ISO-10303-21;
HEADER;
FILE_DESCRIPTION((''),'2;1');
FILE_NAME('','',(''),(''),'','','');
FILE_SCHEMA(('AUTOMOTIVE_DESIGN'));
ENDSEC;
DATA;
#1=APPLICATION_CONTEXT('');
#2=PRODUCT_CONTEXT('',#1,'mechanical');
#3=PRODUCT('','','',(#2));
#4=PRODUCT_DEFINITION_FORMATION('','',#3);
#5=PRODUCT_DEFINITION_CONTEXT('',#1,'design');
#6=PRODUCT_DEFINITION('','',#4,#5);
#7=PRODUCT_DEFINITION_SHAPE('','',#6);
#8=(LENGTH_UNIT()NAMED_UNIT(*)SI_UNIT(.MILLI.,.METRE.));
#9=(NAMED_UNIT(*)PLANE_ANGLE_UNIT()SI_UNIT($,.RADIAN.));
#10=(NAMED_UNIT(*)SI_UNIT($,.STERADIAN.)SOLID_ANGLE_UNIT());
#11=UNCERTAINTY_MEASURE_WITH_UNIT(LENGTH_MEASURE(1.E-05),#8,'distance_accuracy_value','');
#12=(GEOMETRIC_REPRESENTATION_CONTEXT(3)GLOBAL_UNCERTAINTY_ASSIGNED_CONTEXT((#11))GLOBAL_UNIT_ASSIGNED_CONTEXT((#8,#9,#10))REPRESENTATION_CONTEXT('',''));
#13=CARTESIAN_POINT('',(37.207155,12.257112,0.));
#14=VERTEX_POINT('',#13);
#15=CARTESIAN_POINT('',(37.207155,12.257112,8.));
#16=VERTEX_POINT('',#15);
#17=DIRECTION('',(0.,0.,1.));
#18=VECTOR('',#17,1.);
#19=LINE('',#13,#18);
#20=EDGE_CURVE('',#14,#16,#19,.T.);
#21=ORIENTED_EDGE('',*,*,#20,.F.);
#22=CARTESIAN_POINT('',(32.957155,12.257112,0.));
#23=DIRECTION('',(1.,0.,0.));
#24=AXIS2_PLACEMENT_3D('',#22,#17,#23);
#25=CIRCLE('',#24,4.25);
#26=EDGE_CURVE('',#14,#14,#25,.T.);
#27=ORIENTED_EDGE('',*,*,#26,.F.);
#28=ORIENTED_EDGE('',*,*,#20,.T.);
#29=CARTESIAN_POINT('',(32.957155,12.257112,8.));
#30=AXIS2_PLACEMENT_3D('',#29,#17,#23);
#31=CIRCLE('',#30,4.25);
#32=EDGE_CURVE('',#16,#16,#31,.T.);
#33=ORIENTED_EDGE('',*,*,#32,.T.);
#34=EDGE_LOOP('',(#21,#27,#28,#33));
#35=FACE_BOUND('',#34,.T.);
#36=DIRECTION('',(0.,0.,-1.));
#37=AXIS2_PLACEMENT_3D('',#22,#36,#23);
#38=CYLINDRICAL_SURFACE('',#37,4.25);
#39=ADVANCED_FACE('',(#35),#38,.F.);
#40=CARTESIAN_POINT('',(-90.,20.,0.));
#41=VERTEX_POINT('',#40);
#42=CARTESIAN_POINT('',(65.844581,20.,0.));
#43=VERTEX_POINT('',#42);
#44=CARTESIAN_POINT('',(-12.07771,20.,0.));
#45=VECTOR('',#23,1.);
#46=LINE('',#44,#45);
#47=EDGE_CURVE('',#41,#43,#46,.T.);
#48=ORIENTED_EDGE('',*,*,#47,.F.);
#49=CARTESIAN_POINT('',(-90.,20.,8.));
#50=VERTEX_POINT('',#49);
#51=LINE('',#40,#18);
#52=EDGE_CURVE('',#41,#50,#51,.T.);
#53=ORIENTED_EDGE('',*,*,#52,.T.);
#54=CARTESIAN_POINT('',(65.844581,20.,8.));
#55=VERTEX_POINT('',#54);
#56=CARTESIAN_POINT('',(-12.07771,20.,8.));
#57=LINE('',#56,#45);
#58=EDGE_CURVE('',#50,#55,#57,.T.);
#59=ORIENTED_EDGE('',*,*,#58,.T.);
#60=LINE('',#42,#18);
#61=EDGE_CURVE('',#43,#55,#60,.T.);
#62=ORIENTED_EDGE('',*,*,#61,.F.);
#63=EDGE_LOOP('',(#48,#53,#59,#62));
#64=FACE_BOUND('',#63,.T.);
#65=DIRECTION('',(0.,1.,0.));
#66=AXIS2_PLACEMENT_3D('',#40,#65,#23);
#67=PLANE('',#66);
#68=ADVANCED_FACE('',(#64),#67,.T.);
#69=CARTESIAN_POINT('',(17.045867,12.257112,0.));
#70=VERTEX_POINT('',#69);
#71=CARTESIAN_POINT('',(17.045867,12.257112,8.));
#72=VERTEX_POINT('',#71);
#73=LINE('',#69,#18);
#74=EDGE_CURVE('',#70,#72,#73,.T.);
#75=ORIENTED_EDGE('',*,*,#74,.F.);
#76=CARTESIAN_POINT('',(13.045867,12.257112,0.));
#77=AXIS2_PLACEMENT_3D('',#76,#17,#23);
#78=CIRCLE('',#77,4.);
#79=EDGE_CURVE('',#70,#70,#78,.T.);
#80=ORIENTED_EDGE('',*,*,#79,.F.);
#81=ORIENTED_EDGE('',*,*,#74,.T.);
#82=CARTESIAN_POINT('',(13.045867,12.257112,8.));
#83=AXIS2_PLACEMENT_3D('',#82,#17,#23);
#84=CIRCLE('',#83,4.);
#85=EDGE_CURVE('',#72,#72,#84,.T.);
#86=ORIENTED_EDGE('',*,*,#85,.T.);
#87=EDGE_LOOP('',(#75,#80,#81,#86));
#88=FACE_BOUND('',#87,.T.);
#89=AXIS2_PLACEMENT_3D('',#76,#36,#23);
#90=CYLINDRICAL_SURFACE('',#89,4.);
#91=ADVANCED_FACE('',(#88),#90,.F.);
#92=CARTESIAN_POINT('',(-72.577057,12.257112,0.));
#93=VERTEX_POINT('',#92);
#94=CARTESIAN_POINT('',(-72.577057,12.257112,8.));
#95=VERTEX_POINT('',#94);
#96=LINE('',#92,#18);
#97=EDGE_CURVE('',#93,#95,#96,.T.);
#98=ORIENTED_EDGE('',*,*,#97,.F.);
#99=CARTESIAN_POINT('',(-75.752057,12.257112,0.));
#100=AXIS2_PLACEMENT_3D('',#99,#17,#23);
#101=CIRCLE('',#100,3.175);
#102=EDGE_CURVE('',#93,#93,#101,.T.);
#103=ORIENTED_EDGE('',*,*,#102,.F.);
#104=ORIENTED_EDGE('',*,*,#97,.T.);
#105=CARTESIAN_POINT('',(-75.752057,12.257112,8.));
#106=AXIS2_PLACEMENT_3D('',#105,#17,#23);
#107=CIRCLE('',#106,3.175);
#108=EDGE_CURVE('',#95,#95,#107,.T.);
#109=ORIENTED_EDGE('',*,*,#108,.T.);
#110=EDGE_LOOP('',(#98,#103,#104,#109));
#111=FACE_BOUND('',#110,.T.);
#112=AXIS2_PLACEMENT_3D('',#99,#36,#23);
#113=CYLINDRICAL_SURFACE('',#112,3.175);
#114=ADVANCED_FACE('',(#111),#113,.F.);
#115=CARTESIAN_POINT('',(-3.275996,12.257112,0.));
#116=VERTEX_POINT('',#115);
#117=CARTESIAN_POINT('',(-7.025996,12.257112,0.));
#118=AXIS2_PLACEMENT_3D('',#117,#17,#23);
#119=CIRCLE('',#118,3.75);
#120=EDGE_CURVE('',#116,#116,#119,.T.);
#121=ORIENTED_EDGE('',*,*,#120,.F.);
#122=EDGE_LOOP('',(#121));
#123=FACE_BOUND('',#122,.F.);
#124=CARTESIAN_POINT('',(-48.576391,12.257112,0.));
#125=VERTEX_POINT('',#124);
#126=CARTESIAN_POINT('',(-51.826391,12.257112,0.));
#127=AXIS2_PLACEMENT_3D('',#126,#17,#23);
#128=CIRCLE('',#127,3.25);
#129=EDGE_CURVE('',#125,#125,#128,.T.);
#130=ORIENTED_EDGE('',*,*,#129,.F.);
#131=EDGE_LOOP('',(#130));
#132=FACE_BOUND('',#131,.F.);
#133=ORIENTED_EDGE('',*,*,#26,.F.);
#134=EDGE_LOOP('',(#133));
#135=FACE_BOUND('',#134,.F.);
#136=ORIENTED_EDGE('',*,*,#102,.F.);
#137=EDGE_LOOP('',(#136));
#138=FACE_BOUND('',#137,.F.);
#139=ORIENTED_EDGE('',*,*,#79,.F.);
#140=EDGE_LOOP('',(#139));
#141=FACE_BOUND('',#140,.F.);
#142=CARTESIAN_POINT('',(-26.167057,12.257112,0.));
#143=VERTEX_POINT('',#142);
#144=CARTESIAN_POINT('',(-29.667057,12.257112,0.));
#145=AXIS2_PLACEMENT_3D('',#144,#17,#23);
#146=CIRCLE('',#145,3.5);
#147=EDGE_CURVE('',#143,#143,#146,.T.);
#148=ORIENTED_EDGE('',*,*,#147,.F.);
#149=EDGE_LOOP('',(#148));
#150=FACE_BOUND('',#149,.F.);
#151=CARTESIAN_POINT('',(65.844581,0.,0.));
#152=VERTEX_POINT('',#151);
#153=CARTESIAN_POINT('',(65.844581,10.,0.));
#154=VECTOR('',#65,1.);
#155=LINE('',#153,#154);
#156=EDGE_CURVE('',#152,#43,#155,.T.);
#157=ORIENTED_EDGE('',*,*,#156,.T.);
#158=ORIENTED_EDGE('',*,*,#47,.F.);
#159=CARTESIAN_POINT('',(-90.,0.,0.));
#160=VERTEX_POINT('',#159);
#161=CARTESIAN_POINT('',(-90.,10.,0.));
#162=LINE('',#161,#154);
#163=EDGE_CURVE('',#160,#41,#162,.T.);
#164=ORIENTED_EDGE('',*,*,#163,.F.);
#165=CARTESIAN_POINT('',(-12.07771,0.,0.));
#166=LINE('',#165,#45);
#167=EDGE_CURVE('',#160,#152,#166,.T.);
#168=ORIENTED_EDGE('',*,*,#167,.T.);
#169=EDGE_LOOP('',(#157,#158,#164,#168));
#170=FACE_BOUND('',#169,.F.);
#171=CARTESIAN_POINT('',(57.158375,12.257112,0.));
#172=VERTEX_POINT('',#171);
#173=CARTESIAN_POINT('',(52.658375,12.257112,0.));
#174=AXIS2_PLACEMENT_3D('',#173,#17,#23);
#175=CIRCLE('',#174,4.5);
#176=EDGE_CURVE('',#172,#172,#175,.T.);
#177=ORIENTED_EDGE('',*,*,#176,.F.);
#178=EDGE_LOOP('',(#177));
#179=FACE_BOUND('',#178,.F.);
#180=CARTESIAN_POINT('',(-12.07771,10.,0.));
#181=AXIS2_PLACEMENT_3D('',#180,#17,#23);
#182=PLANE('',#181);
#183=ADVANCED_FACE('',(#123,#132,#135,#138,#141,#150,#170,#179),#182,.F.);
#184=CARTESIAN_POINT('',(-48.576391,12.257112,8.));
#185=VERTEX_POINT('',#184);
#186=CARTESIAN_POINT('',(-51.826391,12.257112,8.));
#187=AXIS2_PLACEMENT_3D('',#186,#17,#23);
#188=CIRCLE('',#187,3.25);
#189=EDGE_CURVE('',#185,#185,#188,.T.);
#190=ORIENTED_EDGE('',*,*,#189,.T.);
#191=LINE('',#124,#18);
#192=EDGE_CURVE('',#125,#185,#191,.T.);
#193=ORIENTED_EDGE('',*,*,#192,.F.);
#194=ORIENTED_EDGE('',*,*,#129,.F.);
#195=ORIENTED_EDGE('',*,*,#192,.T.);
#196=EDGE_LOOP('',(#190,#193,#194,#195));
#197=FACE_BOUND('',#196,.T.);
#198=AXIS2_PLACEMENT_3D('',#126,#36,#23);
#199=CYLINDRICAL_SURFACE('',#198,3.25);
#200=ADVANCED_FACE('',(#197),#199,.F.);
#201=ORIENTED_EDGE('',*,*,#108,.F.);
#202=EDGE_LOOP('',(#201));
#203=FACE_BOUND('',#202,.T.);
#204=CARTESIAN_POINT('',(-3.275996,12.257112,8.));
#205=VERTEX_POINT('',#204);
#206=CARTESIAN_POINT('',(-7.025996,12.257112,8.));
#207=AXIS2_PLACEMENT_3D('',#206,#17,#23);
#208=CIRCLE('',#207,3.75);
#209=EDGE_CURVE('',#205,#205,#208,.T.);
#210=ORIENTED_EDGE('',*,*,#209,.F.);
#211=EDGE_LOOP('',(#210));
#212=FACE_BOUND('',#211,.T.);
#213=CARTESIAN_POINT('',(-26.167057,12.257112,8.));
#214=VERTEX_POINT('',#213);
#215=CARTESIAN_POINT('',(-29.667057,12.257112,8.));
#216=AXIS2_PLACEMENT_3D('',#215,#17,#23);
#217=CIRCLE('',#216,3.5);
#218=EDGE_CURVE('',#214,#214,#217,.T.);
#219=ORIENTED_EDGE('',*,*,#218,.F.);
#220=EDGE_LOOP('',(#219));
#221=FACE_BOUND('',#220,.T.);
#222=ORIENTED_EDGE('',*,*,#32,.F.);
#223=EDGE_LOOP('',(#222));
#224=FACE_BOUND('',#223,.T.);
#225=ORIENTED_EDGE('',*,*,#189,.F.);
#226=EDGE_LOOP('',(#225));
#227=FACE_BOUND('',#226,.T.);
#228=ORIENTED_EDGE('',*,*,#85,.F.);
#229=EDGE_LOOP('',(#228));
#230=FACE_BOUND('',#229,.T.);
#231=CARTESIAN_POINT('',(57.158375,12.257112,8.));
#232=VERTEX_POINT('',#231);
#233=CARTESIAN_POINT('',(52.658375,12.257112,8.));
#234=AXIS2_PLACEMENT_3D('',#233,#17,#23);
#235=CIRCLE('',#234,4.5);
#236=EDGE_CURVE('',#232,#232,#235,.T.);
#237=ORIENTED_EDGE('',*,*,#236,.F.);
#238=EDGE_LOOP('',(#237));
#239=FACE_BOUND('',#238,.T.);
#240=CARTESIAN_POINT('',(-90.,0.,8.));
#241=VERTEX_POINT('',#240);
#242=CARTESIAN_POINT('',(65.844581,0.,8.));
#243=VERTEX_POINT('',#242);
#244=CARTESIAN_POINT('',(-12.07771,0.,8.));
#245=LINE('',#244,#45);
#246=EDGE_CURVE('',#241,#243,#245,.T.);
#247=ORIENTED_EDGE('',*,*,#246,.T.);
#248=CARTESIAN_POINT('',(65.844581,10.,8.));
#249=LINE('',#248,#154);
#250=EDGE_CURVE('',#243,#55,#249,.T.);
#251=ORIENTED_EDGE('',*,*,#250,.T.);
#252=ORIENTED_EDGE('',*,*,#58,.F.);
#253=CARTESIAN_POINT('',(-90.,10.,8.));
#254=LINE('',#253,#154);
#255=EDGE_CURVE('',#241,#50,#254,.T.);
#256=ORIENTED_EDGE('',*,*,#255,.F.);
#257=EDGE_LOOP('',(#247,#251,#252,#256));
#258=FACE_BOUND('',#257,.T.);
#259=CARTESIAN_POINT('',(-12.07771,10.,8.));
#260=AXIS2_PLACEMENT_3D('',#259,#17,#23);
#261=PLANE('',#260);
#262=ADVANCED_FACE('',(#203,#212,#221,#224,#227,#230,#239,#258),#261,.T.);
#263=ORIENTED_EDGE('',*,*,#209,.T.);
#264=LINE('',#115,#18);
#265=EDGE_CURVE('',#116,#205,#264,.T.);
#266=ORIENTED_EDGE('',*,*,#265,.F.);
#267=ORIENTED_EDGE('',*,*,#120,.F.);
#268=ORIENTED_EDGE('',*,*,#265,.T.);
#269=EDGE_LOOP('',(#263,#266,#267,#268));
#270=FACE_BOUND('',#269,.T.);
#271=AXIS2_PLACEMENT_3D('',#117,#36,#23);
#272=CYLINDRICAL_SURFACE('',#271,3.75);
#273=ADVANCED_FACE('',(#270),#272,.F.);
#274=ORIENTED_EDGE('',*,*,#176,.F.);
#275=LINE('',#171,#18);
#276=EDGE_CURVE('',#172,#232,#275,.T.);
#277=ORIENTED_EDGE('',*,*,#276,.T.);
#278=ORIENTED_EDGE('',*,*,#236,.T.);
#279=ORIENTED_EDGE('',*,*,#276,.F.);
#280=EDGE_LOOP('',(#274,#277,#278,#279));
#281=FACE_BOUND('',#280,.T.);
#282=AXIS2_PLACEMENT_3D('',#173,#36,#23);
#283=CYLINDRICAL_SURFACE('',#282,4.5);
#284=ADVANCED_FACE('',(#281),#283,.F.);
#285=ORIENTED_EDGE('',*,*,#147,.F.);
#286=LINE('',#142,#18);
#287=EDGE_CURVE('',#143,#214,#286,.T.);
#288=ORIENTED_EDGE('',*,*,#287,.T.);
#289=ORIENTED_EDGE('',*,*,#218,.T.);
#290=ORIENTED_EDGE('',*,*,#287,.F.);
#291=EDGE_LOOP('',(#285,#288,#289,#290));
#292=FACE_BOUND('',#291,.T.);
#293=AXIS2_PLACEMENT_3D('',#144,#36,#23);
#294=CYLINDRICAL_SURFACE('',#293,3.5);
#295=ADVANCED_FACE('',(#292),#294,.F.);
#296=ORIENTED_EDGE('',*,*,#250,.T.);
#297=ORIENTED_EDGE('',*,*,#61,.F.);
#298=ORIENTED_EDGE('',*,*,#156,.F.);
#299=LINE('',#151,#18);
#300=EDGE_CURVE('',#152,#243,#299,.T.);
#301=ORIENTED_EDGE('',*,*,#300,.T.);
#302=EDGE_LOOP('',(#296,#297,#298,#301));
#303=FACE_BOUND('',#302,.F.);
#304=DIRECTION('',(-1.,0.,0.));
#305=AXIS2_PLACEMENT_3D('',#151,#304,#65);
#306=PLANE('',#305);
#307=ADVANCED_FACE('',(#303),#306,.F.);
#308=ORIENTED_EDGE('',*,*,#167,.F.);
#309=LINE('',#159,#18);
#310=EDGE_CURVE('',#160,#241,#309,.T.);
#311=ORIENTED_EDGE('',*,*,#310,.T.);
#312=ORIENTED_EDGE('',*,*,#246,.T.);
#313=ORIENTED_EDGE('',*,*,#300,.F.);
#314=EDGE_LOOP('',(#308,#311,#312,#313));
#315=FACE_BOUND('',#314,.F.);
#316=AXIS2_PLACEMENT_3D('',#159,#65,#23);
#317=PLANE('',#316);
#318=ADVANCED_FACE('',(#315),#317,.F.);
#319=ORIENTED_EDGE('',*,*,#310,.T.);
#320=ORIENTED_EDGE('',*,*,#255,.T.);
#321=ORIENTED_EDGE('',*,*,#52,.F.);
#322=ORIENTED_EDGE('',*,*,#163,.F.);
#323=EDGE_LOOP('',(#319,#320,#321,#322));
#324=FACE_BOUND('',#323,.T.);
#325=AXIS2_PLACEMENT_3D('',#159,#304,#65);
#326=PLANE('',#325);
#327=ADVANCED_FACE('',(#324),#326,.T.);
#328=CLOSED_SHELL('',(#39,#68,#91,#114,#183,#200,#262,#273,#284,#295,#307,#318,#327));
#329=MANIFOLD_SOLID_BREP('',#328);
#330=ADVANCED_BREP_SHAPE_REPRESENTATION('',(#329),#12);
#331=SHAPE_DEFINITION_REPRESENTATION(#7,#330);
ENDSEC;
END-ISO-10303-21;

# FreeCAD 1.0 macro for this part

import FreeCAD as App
import Part
import Sketcher

V = App.Vector

doc = App.newDocument("Part")
body = doc.addObject("PartDesign::Body", "Body")

sketch1 = body.newObject("Sketcher::SketchObject", "Sketch")
sketch1.AttachmentSupport = (doc.getObject("XY_Plane"), [""])
sketch1.MapMode = "FlatFace"
sketch1.addGeometry([
    Part.LineSegment(V(-90, 20, 0), V(-90, 0, 0)),
    Part.LineSegment(V(-90, 0, 0), V(65.8, 0, 0)),
    Part.LineSegment(V(65.8, 0, 0), V(65.8, 20, 0)),
    Part.LineSegment(V(65.8, 20, 0), V(-90, 20, 0)),
    Part.Circle(V(-75.8, 12.3, 0), V(0, 0, 1), 3.2),
    Part.Circle(V(-51.8, 12.3, 0), V(0, 0, 1), 3.2),
    Part.Circle(V(-29.7, 12.3, 0), V(0, 0, 1), 3.5),
    Part.Circle(V(-7, 12.3, 0), V(0, 0, 1), 3.8),
    Part.Circle(V(13, 12.3, 0), V(0, 0, 1), 4),
    Part.Circle(V(33, 12.3, 0), V(0, 0, 1), 4.2),
    Part.Circle(V(52.7, 12.3, 0), V(0, 0, 1), 4.5),
], False)
sketch1.addConstraint([
    Sketcher.Constraint("Coincident", 0, 2, 1, 1),
    Sketcher.Constraint("Coincident", 1, 2, 2, 1),
    Sketcher.Constraint("Coincident", 2, 2, 3, 1),
    Sketcher.Constraint("Coincident", 3, 2, 0, 1),
    Sketcher.Constraint("Vertical", 0),
    Sketcher.Constraint("Horizontal", 1),
    Sketcher.Constraint("Vertical", 2),
    Sketcher.Constraint("Horizontal", 3),
    Sketcher.Constraint("PointOnObject", 0, 2, -1),
    Sketcher.Constraint("Horizontal", 4, 3, 5, 3),
    Sketcher.Constraint("Horizontal", 5, 3, 6, 3),
    Sketcher.Constraint("Horizontal", 6, 3, 7, 3),
    Sketcher.Constraint("Horizontal", 7, 3, 8, 3),
    Sketcher.Constraint("Horizontal", 8, 3, 9, 3),
    Sketcher.Constraint("Horizontal", 9, 3, 10, 3),
    Sketcher.Constraint("Diameter", 6, 7.0),
    Sketcher.Constraint("Diameter", 8, 8.0),
    Sketcher.Constraint("Diameter", 10, 9.0),
    Sketcher.Constraint("Diameter", 5, 6.5),
    Sketcher.Constraint("Diameter", 7, 7.5),
    Sketcher.Constraint("Diameter", 9, 8.5),
    Sketcher.Constraint("Diameter", 4, 6.35),
    Sketcher.Constraint("DistanceY", 0, 2, 0, 1, 20.0),
    Sketcher.Constraint("DistanceX", 0, 2, -1, 1, 90.0),
    Sketcher.Constraint("DistanceX", 4, 3, 6, 3, 46.085),
    Sketcher.Constraint("DistanceX", 1, 1, 1, 2, 155.844581),
    Sketcher.Constraint("DistanceY", -1, 1, 4, 3, 12.257112),
    Sketcher.Constraint("DistanceX", 5, 3, -1, 1, 51.826391),
    Sketcher.Constraint("DistanceX", 6, 3, 7, 3, 22.641061),
    Sketcher.Constraint("DistanceX", 5, 3, 8, 3, 64.872258),
    Sketcher.Constraint("DistanceX", 7, 3, 9, 3, 39.983151),
    Sketcher.Constraint("DistanceX", 9, 3, 10, 3, 19.70122),
    Sketcher.Constraint("DistanceX", 4, 3, -1, 1, 75.752057),
])
pad1 = body.newObject("PartDesign::Pad", "Pad")
pad1.Profile = sketch1
pad1.Length = 8

doc.recompute()
